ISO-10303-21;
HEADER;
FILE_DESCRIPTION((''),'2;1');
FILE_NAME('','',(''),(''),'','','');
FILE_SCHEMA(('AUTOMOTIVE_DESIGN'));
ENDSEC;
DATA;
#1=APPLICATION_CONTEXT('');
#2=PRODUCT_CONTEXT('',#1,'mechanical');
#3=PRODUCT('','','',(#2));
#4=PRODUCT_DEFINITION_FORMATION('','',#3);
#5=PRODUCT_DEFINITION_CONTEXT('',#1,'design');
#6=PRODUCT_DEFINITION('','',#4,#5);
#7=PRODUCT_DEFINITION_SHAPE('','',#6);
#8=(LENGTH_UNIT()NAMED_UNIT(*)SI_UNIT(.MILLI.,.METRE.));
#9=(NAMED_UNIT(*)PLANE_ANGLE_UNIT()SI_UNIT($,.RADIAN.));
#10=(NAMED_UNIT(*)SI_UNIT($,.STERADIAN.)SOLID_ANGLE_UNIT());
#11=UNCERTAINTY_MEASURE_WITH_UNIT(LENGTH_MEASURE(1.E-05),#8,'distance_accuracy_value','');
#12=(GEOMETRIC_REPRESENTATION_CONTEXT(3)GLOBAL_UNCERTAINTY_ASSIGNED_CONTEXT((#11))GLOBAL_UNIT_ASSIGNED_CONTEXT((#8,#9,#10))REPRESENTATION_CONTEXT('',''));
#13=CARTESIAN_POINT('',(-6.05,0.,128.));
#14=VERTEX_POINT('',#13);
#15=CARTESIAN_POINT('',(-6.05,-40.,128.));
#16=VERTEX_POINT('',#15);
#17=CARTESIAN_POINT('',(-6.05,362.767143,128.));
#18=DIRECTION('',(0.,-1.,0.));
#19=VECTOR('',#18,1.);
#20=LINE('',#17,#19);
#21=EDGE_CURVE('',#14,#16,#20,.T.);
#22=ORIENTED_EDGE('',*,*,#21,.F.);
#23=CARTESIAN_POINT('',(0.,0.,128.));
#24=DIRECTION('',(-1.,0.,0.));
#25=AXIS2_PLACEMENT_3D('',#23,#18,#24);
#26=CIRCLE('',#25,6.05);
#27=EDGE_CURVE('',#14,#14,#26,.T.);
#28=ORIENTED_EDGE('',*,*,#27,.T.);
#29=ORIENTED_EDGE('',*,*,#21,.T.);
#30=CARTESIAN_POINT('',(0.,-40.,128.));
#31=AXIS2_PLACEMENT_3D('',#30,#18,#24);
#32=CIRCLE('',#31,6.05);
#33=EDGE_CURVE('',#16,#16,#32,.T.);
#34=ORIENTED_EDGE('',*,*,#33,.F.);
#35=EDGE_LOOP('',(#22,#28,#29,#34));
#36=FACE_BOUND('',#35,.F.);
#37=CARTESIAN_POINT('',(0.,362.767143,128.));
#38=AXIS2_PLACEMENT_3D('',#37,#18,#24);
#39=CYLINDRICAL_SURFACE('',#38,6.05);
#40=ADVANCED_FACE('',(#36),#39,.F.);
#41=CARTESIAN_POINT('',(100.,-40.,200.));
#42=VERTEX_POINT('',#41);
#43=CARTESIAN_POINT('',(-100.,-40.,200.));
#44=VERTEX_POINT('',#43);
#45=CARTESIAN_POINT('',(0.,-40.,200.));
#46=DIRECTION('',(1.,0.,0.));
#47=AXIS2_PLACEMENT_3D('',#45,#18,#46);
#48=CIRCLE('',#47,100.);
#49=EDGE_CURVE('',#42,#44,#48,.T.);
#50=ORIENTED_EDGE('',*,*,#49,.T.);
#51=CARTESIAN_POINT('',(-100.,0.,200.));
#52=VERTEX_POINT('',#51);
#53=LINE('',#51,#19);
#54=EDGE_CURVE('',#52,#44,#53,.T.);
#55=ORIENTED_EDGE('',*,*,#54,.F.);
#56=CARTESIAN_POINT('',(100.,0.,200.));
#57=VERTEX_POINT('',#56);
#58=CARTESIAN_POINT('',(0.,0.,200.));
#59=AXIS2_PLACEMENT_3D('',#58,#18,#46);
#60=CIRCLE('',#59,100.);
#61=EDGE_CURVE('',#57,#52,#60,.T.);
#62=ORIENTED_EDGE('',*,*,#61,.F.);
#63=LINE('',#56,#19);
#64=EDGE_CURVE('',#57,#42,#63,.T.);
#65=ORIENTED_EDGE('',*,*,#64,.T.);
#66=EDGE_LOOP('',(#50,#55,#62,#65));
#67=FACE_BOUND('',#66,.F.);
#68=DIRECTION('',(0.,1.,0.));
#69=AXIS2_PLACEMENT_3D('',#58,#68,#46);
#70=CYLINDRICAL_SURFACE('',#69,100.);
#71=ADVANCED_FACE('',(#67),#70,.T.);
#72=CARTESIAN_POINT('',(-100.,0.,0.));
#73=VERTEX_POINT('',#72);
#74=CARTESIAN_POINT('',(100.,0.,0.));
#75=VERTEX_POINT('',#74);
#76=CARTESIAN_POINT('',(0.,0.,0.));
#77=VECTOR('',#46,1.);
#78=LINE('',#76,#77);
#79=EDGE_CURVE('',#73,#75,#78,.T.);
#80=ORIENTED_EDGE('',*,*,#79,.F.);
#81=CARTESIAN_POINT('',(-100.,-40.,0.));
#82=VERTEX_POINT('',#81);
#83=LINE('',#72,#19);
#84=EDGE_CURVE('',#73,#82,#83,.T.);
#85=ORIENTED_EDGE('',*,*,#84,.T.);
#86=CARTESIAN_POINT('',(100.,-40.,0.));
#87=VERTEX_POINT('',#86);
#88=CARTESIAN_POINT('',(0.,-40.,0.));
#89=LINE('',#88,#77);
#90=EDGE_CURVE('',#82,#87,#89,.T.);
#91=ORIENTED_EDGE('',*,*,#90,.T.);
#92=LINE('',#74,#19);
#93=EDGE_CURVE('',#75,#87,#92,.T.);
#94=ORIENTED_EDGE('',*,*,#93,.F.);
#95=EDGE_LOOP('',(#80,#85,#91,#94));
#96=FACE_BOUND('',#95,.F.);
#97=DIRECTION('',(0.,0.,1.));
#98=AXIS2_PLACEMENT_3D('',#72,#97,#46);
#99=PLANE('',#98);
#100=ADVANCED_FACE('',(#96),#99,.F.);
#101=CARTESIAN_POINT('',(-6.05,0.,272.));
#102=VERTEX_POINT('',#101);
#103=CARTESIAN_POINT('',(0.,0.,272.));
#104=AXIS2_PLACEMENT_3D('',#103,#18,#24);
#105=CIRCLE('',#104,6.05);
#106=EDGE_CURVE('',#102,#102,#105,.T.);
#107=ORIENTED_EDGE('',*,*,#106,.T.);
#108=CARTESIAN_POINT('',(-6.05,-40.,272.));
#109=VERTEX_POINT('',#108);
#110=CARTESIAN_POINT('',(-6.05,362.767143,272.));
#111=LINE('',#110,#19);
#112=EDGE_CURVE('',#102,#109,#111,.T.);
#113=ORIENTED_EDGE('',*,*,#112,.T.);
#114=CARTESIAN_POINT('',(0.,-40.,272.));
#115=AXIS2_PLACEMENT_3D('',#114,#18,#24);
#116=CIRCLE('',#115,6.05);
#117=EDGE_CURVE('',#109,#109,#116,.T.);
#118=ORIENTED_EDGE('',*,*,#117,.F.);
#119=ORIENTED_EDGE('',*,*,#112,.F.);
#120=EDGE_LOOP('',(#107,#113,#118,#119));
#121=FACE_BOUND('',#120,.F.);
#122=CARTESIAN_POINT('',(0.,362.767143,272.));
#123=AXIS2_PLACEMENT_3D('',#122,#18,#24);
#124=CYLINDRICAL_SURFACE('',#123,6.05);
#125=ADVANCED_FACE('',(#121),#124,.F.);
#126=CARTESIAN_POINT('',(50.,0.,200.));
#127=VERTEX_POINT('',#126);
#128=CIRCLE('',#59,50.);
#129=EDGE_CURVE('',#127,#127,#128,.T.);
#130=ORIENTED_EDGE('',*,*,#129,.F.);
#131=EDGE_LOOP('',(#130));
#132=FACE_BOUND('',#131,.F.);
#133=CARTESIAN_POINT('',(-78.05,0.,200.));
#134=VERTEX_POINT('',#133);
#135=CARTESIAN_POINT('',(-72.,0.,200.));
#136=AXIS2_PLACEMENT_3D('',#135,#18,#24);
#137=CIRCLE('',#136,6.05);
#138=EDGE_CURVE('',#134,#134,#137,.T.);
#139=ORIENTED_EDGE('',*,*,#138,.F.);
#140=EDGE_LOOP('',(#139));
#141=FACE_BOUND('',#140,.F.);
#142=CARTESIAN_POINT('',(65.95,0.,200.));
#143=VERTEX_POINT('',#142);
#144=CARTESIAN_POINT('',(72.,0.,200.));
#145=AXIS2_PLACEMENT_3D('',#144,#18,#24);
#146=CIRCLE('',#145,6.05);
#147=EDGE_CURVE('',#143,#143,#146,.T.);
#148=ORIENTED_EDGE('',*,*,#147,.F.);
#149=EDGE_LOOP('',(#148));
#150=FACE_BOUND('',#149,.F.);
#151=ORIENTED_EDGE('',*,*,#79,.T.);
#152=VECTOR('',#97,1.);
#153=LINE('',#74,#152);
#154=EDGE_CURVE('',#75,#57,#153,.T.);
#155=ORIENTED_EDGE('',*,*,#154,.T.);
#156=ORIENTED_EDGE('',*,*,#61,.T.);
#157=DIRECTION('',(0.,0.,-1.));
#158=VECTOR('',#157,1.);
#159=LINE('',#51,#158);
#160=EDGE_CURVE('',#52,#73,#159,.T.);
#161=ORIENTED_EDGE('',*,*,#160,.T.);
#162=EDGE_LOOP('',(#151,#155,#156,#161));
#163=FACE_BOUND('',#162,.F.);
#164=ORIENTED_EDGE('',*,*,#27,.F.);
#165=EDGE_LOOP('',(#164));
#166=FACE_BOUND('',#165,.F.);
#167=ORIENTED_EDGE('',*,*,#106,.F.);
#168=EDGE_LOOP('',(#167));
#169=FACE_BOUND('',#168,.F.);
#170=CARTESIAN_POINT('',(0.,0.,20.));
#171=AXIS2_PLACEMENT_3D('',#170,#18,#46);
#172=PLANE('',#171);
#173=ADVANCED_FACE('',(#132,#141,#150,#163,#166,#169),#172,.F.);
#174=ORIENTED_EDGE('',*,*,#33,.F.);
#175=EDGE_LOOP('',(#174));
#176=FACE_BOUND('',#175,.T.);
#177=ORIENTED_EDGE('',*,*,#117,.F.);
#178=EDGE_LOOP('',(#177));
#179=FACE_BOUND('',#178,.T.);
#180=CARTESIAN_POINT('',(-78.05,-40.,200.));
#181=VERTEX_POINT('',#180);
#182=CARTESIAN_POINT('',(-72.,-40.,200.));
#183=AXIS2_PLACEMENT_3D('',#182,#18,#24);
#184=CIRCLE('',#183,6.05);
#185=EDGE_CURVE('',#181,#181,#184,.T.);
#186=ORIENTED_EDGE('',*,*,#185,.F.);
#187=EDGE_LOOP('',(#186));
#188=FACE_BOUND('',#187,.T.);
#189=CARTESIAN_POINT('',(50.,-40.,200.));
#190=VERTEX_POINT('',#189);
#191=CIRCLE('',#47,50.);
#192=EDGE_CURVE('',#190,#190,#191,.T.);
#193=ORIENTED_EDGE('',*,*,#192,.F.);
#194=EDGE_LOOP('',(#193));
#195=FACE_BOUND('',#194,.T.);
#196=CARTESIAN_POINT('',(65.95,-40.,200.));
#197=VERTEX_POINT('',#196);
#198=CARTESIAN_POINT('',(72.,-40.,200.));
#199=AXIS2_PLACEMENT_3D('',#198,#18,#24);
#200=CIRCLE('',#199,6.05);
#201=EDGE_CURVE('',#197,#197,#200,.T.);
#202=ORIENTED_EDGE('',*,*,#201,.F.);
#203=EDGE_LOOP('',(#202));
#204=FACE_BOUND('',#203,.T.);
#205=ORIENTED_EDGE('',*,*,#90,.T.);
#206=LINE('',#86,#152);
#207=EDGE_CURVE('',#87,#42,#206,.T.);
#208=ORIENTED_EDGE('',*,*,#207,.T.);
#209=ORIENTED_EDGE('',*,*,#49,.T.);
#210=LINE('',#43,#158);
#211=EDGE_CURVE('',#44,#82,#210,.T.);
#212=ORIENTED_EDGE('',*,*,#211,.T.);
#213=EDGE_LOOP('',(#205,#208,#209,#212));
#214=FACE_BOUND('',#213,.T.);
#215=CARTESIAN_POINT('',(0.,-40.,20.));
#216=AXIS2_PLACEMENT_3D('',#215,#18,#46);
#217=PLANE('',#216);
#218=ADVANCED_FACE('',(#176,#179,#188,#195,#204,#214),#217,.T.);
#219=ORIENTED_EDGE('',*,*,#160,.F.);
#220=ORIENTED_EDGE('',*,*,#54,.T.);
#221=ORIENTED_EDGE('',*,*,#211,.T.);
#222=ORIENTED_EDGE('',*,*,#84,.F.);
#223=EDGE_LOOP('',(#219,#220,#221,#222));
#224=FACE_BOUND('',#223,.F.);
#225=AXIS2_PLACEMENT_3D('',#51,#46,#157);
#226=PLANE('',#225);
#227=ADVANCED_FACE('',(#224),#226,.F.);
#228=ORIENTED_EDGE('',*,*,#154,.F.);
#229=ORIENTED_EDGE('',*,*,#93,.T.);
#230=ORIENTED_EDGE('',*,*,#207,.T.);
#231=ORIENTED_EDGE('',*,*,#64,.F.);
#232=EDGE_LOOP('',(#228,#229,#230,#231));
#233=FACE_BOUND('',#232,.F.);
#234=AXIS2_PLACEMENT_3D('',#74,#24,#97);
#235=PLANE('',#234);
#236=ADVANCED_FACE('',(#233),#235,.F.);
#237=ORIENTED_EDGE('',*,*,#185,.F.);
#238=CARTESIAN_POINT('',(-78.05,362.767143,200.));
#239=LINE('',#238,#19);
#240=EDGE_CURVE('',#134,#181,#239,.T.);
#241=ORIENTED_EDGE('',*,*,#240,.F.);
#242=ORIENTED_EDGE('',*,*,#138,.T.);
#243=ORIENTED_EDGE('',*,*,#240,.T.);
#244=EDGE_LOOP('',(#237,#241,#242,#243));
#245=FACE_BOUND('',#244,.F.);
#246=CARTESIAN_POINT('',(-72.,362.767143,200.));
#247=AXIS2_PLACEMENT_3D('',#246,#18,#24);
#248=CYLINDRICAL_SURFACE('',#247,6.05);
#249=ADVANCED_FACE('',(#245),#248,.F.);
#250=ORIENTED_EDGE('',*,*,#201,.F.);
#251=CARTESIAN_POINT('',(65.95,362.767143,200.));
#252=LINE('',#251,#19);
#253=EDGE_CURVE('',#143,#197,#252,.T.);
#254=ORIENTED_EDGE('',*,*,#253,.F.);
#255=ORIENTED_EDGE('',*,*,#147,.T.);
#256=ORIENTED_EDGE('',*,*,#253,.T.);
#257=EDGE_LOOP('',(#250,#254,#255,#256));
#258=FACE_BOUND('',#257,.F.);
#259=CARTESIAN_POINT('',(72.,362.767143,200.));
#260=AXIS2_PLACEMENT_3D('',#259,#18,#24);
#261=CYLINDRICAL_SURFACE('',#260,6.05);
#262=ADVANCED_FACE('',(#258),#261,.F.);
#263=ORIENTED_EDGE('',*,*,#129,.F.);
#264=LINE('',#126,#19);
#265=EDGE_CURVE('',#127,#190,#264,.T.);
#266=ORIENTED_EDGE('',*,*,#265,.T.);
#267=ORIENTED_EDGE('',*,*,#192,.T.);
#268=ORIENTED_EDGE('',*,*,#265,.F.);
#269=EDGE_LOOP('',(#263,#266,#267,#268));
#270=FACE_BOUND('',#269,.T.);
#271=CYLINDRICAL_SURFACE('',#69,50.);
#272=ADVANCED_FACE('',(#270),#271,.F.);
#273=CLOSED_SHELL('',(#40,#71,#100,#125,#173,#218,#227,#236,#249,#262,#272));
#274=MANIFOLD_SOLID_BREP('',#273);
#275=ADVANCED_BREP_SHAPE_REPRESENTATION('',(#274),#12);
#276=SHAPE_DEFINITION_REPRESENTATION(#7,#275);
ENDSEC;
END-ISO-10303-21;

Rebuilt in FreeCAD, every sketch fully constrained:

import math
import FreeCAD as App
import Part
import Sketcher

doc = App.newDocument("Part")
body = doc.addObject("PartDesign::Body", "Body")

# Sketch on XZ plane
sketch1 = body.newObject("Sketcher::SketchObject", "Sketch")
sketch1.AttachmentSupport = (doc.getObject("XZ_Plane"), [""])
sketch1.MapMode = "FlatFace"
sketch1.addGeometry([
    Part.LineSegment(App.Vector(-100, 0, 0), App.Vector(100, 0, 0)),  # 0
    Part.LineSegment(App.Vector(100, 0, 0), App.Vector(100, 200, 0)),  # 1
    Part.ArcOfCircle(Part.Circle(App.Vector(0, 200, 0), App.Vector(0, 0, 1), 100), math.radians(0), math.radians(180)),  # 2
    Part.LineSegment(App.Vector(-100, 200, 0), App.Vector(-100, 0, 0)),  # 3
    Part.Circle(App.Vector(0, 200, 0), App.Vector(0, 0, 1), 50),  # 4
], False)
sketch1.addConstraint([
    Sketcher.Constraint("Coincident", 0, 2, 1, 1),
    Sketcher.Constraint("Tangent", 1, 2, 2, 1),
    Sketcher.Constraint("Tangent", 2, 2, 3, 1),
    Sketcher.Constraint("Coincident", 3, 2, 0, 1),
    Sketcher.Constraint("Horizontal", 0),
    Sketcher.Constraint("Vertical", 1),
    Sketcher.Constraint("Vertical", 3),
    Sketcher.Constraint("Coincident", 4, 3, 2, 3),
    Sketcher.Constraint("Symmetric", 0, 2, 3, 2, -1, 1),
    Sketcher.Constraint("Equal", 0, 1),
    Sketcher.Constraint("Diameter", 4, 100.0),
    Sketcher.Constraint("Radius", 2, 100.0),
])
pad1 = body.newObject("PartDesign::Pad", "Pad")
pad1.Profile = sketch1
pad1.Length = 40

# Sketch on XZ plane
sketch2 = body.newObject("Sketcher::SketchObject", "Sketch001")
sketch2.AttachmentSupport = (doc.getObject("XZ_Plane"), [""])
sketch2.MapMode = "FlatFace"
sketch2.addGeometry([
    Part.Circle(App.Vector(0, 272, 0), App.Vector(0, 0, 1), 6),
    Part.Circle(App.Vector(-72, 200, 0), App.Vector(0, 0, 1), 6),
    Part.Circle(App.Vector(0, 128, 0), App.Vector(0, 0, 1), 6),
    Part.Circle(App.Vector(72, 200, 0), App.Vector(0, 0, 1), 6),
], False)
sketch2.addConstraint([
    Sketcher.Constraint("Equal", 0, 1),
    Sketcher.Constraint("Equal", 1, 2),
    Sketcher.Constraint("Equal", 2, 3),
    Sketcher.Constraint("Symmetric", 1, 3, 3, 3, -2),
    Sketcher.Constraint("PointOnObject", 0, 3, -2),
    Sketcher.Constraint("PointOnObject", 2, 3, -2),
    Sketcher.Constraint("Diameter", 0, 12.1),
    Sketcher.Constraint("DistanceY", -1, 1, 0, 3, 272.0),
    Sketcher.Constraint("DistanceX", 1, 3, -1, 1, 72.0),
    Sketcher.Constraint("DistanceY", -1, 1, 1, 3, 200.0),
    Sketcher.Constraint("DistanceY", -1, 1, 2, 3, 128.0),
])
doc.recompute()
hole = body.newObject("PartDesign::Hole", "Hole")
hole.Profile = sketch2
hole.ThreadType = "None"
hole.Diameter = 12.1
hole.DepthType = "ThroughAll"
hole.Reversed = True

doc.recompute()
